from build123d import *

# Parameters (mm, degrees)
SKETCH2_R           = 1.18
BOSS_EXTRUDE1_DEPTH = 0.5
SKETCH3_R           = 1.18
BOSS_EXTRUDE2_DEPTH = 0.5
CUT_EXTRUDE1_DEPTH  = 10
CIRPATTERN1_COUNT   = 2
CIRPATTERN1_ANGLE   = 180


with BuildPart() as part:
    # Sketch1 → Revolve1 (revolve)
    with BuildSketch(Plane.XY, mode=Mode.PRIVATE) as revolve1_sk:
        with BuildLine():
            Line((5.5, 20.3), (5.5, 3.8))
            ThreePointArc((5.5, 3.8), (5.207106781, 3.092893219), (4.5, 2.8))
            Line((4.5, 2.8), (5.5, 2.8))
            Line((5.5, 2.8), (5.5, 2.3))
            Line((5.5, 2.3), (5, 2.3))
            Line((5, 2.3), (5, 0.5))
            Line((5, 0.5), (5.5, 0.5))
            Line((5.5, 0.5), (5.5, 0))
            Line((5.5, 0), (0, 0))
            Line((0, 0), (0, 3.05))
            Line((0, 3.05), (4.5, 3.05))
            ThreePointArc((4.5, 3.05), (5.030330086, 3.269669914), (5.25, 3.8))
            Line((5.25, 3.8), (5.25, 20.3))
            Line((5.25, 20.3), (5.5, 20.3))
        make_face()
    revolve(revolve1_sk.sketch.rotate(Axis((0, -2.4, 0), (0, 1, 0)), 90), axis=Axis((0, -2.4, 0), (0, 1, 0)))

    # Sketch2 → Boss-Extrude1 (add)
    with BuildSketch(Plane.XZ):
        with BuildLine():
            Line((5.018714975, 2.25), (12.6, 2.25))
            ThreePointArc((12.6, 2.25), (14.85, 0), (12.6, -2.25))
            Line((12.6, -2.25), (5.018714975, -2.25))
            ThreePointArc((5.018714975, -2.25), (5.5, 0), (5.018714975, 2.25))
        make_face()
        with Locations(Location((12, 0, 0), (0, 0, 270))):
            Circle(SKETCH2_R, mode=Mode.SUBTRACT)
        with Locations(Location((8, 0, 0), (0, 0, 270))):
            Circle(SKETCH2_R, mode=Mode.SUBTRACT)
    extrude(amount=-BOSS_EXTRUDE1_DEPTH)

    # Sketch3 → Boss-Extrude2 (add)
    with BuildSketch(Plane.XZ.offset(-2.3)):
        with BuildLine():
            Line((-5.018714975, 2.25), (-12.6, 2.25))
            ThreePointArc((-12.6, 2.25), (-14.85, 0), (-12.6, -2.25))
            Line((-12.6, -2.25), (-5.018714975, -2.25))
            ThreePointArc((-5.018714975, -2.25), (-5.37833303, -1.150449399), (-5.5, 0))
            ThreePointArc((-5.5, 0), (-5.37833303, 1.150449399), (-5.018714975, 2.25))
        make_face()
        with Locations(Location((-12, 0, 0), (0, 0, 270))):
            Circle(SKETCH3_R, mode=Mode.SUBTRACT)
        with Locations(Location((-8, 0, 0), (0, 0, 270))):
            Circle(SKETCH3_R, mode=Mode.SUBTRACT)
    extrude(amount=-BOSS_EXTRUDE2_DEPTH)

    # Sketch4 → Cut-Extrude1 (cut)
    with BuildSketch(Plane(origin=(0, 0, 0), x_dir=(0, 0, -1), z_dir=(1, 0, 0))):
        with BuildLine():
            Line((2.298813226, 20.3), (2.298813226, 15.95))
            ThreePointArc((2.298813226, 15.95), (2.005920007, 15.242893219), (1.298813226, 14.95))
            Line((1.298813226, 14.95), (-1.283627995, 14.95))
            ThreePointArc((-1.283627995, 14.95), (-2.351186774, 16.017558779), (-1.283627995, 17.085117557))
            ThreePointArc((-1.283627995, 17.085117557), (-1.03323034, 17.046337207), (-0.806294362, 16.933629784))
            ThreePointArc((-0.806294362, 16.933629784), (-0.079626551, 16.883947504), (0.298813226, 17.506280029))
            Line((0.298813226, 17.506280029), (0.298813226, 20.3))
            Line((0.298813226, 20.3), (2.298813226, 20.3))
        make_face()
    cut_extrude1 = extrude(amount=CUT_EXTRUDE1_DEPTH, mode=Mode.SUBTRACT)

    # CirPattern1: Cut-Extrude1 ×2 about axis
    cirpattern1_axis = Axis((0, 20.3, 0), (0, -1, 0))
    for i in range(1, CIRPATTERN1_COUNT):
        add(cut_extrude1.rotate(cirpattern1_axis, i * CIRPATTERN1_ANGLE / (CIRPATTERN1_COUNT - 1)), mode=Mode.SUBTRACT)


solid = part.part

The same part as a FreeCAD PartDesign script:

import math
import FreeCAD as App
import Part
import Sketcher

doc = App.newDocument("Part")
body = doc.addObject("PartDesign::Body", "Body")

sketch1 = doc.addObject("Sketcher::SketchObject", "Sketch")
body.addObject(sketch1)
sketch1.AttachmentSupport = (doc.XY_Plane, [""])
sketch1.MapMode = "FlatFace"
sketch1.addGeometry([
    Part.LineSegment(App.Vector(5.5, 3.8, 0), App.Vector(5.5, 20.3, 0)),
    Part.LineSegment(App.Vector(5.5, 20.3, 0), App.Vector(5.25, 20.3, 0)),
    Part.LineSegment(App.Vector(5.25, 20.3, 0), App.Vector(5.25, 3.8, 0)),
    Part.ArcOfCircle(Part.Circle(App.Vector(4.5, 3.8, 0), App.Vector(0, 0, 1), 0.75), math.radians(-90), math.radians(0)),
    Part.LineSegment(App.Vector(4.5, 3.05, 0), App.Vector(0, 3.05, 0)),
    Part.LineSegment(App.Vector(0, 3.05, 0), App.Vector(0, 0, 0)),
    Part.LineSegment(App.Vector(0, 0, 0), App.Vector(5.5, 0, 0)),
    Part.LineSegment(App.Vector(5.5, 0, 0), App.Vector(5.5, 0.5, 0)),
    Part.LineSegment(App.Vector(5.5, 0.5, 0), App.Vector(5, 0.5, 0)),
    Part.LineSegment(App.Vector(5, 0.5, 0), App.Vector(5, 2.3, 0)),
    Part.LineSegment(App.Vector(5, 2.3, 0), App.Vector(5.5, 2.3, 0)),
    Part.LineSegment(App.Vector(5.5, 2.3, 0), App.Vector(5.5, 2.8, 0)),
    Part.LineSegment(App.Vector(5.5, 2.8, 0), App.Vector(4.5, 2.8, 0)),
    Part.ArcOfCircle(Part.Circle(App.Vector(4.5, 3.8, 0), App.Vector(0, 0, 1), 1), math.radians(-90), math.radians(0)),
], False)
sketch1.addConstraint([
    Sketcher.Constraint("Coincident", 0, 2, 1, 1),
    Sketcher.Constraint("Coincident", 1, 2, 2, 1),
    Sketcher.Constraint("Tangent", 2, 2, 3, 2),
    Sketcher.Constraint("Tangent", 3, 1, 4, 1),
    Sketcher.Constraint("Coincident", 4, 2, 5, 1),
    Sketcher.Constraint("Coincident", 5, 2, 6, 1),
    Sketcher.Constraint("Coincident", 6, 2, 7, 1),
    Sketcher.Constraint("Coincident", 7, 2, 8, 1),
    Sketcher.Constraint("Coincident", 8, 2, 9, 1),
    Sketcher.Constraint("Coincident", 9, 2, 10, 1),
    Sketcher.Constraint("Coincident", 10, 2, 11, 1),
    Sketcher.Constraint("Coincident", 11, 2, 12, 1),
    Sketcher.Constraint("Tangent", 12, 2, 13, 1),
    Sketcher.Constraint("Tangent", 13, 2, 0, 1),
    Sketcher.Constraint("Vertical", 0),
    Sketcher.Constraint("Horizontal", 1),
    Sketcher.Constraint("Vertical", 2),
    Sketcher.Constraint("Horizontal", 4),
    Sketcher.Constraint("Vertical", 5),
    Sketcher.Constraint("Horizontal", 6),
    Sketcher.Constraint("Vertical", 7),
    Sketcher.Constraint("Horizontal", 8),
    Sketcher.Constraint("Vertical", 9),
    Sketcher.Constraint("Horizontal", 10),
    Sketcher.Constraint("Vertical", 11),
    Sketcher.Constraint("Horizontal", 12),
    Sketcher.Constraint("Coincident", 5, 2, -1, 1),
    Sketcher.Constraint("Coincident", 13, 3, 3, 3),
    Sketcher.Constraint("Vertical", 0, 2, 6, 2),
    Sketcher.Constraint("Vertical", 7, 2, 10, 2),
    Sketcher.Constraint("Equal", 10, 7),
    Sketcher.Constraint("Equal", 7, 11),
    Sketcher.Constraint("Radius", 13, 1.0),
    Sketcher.Constraint("Radius", 3, 0.75),
    Sketcher.Constraint("DistanceX", 4, 2, 4, 1, 4.5),
    Sketcher.Constraint("DistanceX", 8, 2, 8, 1, 0.5),
    Sketcher.Constraint("DistanceY", 0, 1, 0, 2, 16.5),
    Sketcher.Constraint("DistanceY", 9, 1, 9, 2, 1.8),
])
revolution = doc.addObject("PartDesign::Revolution", "Revolution")
body.addObject(revolution)
revolution.Profile = sketch1
revolution.ReferenceAxis = (sketch1, ["V_Axis"])
revolution.Angle = 360

sketch2 = doc.addObject("Sketcher::SketchObject", "Sketch001")
body.addObject(sketch2)
sketch2.AttachmentSupport = (doc.XZ_Plane, [""])
sketch2.MapMode = "FlatFace"
sketch2.addGeometry([
    Part.LineSegment(App.Vector(12.6, 2.25, 0), App.Vector(5.018715, 2.25, 0)),
    Part.ArcOfCircle(Part.Circle(App.Vector(0, 0, 0), App.Vector(0, 0, 1), 5.5), math.radians(-24.14774), math.radians(24.14774)),
    Part.LineSegment(App.Vector(5.018715, -2.25, 0), App.Vector(12.6, -2.25, 0)),
    Part.ArcOfCircle(Part.Circle(App.Vector(12.6, 0, 0), App.Vector(0, 0, 1), 2.25), math.radians(-90), math.radians(90)),
    Part.Circle(App.Vector(12, 0, 0), App.Vector(0, 0, 1), 1.18),
    Part.Circle(App.Vector(8, 0, 0), App.Vector(0, 0, 1), 1.18),
], False)
sketch2.addConstraint([
    Sketcher.Constraint("Coincident", 0, 2, 1, 2),
    Sketcher.Constraint("Coincident", 1, 1, 2, 1),
    Sketcher.Constraint("Tangent", 2, 2, 3, 1),
    Sketcher.Constraint("Tangent", 3, 2, 0, 1),
    Sketcher.Constraint("Horizontal", 0),
    Sketcher.Constraint("Horizontal", 2),
    Sketcher.Constraint("Coincident", 1, 3, -1, 1),
    Sketcher.Constraint("Equal", 4, 5),
    Sketcher.Constraint("PointOnObject", 3, 3, -1),
    Sketcher.Constraint("PointOnObject", 4, 3, -1),
    Sketcher.Constraint("PointOnObject", 5, 3, -1),
    Sketcher.Constraint("Radius", 1, 5.5),
    Sketcher.Constraint("Diameter", 4, 2.36),
    Sketcher.Constraint("Radius", 3, 2.25),
    Sketcher.Constraint("DistanceX", -1, 1, 4, 3, 12.0),
    Sketcher.Constraint("DistanceX", -1, 1, 5, 3, 8.0),
    Sketcher.Constraint("DistanceX", -1, 1, 3, 3, 12.6),
])
pad1 = doc.addObject("PartDesign::Pad", "Pad")
body.addObject(pad1)
pad1.Profile = sketch2
pad1.Length = 0.5
pad1.Reversed = True

sketch3 = doc.addObject("Sketcher::SketchObject", "Sketch002")
body.addObject(sketch3)
sketch3.AttachmentSupport = (doc.XZ_Plane, [""])
sketch3.MapMode = "FlatFace"
sketch3.AttachmentOffset = App.Placement(App.Vector(0, 0, -2.3), App.Rotation())
sketch3.addGeometry([
    Part.LineSegment(App.Vector(-5.018715, 2.25, 0), App.Vector(-12.6, 2.25, 0)),
    Part.ArcOfCircle(Part.Circle(App.Vector(-12.6, 0, 0), App.Vector(0, 0, 1), 2.25), math.radians(90), math.radians(270)),
    Part.LineSegment(App.Vector(-12.6, -2.25, 0), App.Vector(-5.018715, -2.25, 0)),
    Part.ArcOfCircle(Part.Circle(App.Vector(0, 0, 0), App.Vector(0, 0, 1), 5.5), math.radians(180), math.radians(204.14774)),
    Part.ArcOfCircle(Part.Circle(App.Vector(0, 0, 0), App.Vector(0, 0, 1), 5.5), math.radians(155.85226), math.radians(180)),
    Part.Circle(App.Vector(-12, 0, 0), App.Vector(0, 0, 1), 1.18),
    Part.Circle(App.Vector(-8, 0, 0), App.Vector(0, 0, 1), 1.18),
], False)
sketch3.addConstraint([
    Sketcher.Constraint("Tangent", 0, 2, 1, 1),
    Sketcher.Constraint("Tangent", 1, 2, 2, 1),
    Sketcher.Constraint("Coincident", 2, 2, 3, 2),
    Sketcher.Constraint("Tangent", 3, 1, 4, 2),
    Sketcher.Constraint("Coincident", 4, 1, 0, 1),
    Sketcher.Constraint("Horizontal", 0),
    Sketcher.Constraint("Horizontal", 2),
    Sketcher.Constraint("Coincident", 3, 3, -1, 1),
    Sketcher.Constraint("Equal", 3, 4),
    Sketcher.Constraint("Equal", 5, 6),
    Sketcher.Constraint("PointOnObject", 1, 3, -1),
    Sketcher.Constraint("PointOnObject", 5, 3, -1),
    Sketcher.Constraint("PointOnObject", 6, 3, -1),
    Sketcher.Constraint("PointOnObject", 3, 1, -1),
    Sketcher.Constraint("Radius", 3, 5.5),
    Sketcher.Constraint("Diameter", 5, 2.36),
    Sketcher.Constraint("Radius", 1, 2.25),
    Sketcher.Constraint("DistanceX", 5, 3, -1, 1, 12.0),
    Sketcher.Constraint("DistanceX", 6, 3, -1, 1, 8.0),
    Sketcher.Constraint("DistanceX", 1, 3, -1, 1, 12.6),
])
pad2 = doc.addObject("PartDesign::Pad", "Pad001")
body.addObject(pad2)
pad2.Profile = sketch3
pad2.Length = 0.5
pad2.Reversed = True

sketch4 = doc.addObject("Sketcher::SketchObject", "Sketch003")
body.addObject(sketch4)
sketch4.AttachmentSupport = (doc.YZ_Plane, [""])
sketch4.MapMode = "FlatFace"
sketch4.addGeometry([
    Part.LineSegment(App.Vector(15.95, -2.298813, 0), App.Vector(20.3, -2.298813, 0)),
    Part.LineSegment(App.Vector(20.3, -2.298813, 0), App.Vector(20.3, -0.298813, 0)),
    Part.LineSegment(App.Vector(20.3, -0.298813, 0), App.Vector(17.50628, -0.298813, 0)),
    Part.ArcOfCircle(Part.Circle(App.Vector(17.50628, 0.40211, 0), App.Vector(0, 0, 1), 0.700923), math.radians(144.785032), math.radians(270)),
    Part.ArcOfCircle(Part.Circle(App.Vector(16.257341, 1.283628, 0), App.Vector(0, 0, 1), 0.827776), math.radians(-35.214968), math.radians(0)),
    Part.ArcOfCircle(Part.Circle(App.Vector(16.017559, 1.283628, 0), App.Vector(0, 0, 1), 1.067559), math.radians(0), math.radians(180)),
    Part.LineSegment(App.Vector(14.95, 1.283628, 0), App.Vector(14.95, -1.298813, 0)),
    Part.ArcOfCircle(Part.Circle(App.Vector(15.95, -1.298813, 0), App.Vector(0, 0, 1), 1), math.radians(-180), math.radians(-90)),
], False)
sketch4.addConstraint([
    Sketcher.Constraint("Coincident", 0, 2, 1, 1),
    Sketcher.Constraint("Coincident", 1, 2, 2, 1),
    Sketcher.Constraint("Tangent", 2, 2, 3, 2),
    Sketcher.Constraint("Tangent", 3, 1, 4, 1),
    Sketcher.Constraint("Tangent", 4, 2, 5, 1),
    Sketcher.Constraint("Tangent", 5, 2, 6, 1),
    Sketcher.Constraint("Tangent", 6, 2, 7, 1),
    Sketcher.Constraint("Tangent", 7, 2, 0, 1),
    Sketcher.Constraint("Horizontal", 0),
    Sketcher.Constraint("Vertical", 1),
    Sketcher.Constraint("Horizontal", 2),
    Sketcher.Constraint("Vertical", 6),
    Sketcher.Constraint("Horizontal", 4, 3, 5, 3),
    Sketcher.Constraint("Radius", 7, 1.0),
    Sketcher.Constraint("DistanceY", 1, 1, 1, 2, 2.0),
    Sketcher.Constraint("DistanceX", 0, 1, 0, 2, 4.35),
    Sketcher.Constraint("DistanceX", -1, 1, 0, 2, 20.3),
    Sketcher.Constraint("Radius", 5, 1.067559),
    Sketcher.Constraint("Radius", 3, 0.700923),
    Sketcher.Constraint("Radius", 4, 0.827776),
    Sketcher.Constraint("DistanceX", 2, 2, 2, 1, 2.79372),
    Sketcher.Constraint("DistanceY", -1, 1, 3, 3, 0.40211),
])
pocket1 = doc.addObject("PartDesign::Pocket", "Pocket")
body.addObject(pocket1)
pocket1.Profile = sketch4
pocket1.Length = 10
pocket1.Reversed = True
doc.recompute()

polarpattern = doc.addObject("PartDesign::PolarPattern", "PolarPattern")
body.addObject(polarpattern)
polarpattern.Originals = [pocket1]
polarpattern.Axis = (doc.Y_Axis, [""])
polarpattern.Angle = 360
polarpattern.Occurrences = 2
body.Tip = polarpattern

doc.recompute()
